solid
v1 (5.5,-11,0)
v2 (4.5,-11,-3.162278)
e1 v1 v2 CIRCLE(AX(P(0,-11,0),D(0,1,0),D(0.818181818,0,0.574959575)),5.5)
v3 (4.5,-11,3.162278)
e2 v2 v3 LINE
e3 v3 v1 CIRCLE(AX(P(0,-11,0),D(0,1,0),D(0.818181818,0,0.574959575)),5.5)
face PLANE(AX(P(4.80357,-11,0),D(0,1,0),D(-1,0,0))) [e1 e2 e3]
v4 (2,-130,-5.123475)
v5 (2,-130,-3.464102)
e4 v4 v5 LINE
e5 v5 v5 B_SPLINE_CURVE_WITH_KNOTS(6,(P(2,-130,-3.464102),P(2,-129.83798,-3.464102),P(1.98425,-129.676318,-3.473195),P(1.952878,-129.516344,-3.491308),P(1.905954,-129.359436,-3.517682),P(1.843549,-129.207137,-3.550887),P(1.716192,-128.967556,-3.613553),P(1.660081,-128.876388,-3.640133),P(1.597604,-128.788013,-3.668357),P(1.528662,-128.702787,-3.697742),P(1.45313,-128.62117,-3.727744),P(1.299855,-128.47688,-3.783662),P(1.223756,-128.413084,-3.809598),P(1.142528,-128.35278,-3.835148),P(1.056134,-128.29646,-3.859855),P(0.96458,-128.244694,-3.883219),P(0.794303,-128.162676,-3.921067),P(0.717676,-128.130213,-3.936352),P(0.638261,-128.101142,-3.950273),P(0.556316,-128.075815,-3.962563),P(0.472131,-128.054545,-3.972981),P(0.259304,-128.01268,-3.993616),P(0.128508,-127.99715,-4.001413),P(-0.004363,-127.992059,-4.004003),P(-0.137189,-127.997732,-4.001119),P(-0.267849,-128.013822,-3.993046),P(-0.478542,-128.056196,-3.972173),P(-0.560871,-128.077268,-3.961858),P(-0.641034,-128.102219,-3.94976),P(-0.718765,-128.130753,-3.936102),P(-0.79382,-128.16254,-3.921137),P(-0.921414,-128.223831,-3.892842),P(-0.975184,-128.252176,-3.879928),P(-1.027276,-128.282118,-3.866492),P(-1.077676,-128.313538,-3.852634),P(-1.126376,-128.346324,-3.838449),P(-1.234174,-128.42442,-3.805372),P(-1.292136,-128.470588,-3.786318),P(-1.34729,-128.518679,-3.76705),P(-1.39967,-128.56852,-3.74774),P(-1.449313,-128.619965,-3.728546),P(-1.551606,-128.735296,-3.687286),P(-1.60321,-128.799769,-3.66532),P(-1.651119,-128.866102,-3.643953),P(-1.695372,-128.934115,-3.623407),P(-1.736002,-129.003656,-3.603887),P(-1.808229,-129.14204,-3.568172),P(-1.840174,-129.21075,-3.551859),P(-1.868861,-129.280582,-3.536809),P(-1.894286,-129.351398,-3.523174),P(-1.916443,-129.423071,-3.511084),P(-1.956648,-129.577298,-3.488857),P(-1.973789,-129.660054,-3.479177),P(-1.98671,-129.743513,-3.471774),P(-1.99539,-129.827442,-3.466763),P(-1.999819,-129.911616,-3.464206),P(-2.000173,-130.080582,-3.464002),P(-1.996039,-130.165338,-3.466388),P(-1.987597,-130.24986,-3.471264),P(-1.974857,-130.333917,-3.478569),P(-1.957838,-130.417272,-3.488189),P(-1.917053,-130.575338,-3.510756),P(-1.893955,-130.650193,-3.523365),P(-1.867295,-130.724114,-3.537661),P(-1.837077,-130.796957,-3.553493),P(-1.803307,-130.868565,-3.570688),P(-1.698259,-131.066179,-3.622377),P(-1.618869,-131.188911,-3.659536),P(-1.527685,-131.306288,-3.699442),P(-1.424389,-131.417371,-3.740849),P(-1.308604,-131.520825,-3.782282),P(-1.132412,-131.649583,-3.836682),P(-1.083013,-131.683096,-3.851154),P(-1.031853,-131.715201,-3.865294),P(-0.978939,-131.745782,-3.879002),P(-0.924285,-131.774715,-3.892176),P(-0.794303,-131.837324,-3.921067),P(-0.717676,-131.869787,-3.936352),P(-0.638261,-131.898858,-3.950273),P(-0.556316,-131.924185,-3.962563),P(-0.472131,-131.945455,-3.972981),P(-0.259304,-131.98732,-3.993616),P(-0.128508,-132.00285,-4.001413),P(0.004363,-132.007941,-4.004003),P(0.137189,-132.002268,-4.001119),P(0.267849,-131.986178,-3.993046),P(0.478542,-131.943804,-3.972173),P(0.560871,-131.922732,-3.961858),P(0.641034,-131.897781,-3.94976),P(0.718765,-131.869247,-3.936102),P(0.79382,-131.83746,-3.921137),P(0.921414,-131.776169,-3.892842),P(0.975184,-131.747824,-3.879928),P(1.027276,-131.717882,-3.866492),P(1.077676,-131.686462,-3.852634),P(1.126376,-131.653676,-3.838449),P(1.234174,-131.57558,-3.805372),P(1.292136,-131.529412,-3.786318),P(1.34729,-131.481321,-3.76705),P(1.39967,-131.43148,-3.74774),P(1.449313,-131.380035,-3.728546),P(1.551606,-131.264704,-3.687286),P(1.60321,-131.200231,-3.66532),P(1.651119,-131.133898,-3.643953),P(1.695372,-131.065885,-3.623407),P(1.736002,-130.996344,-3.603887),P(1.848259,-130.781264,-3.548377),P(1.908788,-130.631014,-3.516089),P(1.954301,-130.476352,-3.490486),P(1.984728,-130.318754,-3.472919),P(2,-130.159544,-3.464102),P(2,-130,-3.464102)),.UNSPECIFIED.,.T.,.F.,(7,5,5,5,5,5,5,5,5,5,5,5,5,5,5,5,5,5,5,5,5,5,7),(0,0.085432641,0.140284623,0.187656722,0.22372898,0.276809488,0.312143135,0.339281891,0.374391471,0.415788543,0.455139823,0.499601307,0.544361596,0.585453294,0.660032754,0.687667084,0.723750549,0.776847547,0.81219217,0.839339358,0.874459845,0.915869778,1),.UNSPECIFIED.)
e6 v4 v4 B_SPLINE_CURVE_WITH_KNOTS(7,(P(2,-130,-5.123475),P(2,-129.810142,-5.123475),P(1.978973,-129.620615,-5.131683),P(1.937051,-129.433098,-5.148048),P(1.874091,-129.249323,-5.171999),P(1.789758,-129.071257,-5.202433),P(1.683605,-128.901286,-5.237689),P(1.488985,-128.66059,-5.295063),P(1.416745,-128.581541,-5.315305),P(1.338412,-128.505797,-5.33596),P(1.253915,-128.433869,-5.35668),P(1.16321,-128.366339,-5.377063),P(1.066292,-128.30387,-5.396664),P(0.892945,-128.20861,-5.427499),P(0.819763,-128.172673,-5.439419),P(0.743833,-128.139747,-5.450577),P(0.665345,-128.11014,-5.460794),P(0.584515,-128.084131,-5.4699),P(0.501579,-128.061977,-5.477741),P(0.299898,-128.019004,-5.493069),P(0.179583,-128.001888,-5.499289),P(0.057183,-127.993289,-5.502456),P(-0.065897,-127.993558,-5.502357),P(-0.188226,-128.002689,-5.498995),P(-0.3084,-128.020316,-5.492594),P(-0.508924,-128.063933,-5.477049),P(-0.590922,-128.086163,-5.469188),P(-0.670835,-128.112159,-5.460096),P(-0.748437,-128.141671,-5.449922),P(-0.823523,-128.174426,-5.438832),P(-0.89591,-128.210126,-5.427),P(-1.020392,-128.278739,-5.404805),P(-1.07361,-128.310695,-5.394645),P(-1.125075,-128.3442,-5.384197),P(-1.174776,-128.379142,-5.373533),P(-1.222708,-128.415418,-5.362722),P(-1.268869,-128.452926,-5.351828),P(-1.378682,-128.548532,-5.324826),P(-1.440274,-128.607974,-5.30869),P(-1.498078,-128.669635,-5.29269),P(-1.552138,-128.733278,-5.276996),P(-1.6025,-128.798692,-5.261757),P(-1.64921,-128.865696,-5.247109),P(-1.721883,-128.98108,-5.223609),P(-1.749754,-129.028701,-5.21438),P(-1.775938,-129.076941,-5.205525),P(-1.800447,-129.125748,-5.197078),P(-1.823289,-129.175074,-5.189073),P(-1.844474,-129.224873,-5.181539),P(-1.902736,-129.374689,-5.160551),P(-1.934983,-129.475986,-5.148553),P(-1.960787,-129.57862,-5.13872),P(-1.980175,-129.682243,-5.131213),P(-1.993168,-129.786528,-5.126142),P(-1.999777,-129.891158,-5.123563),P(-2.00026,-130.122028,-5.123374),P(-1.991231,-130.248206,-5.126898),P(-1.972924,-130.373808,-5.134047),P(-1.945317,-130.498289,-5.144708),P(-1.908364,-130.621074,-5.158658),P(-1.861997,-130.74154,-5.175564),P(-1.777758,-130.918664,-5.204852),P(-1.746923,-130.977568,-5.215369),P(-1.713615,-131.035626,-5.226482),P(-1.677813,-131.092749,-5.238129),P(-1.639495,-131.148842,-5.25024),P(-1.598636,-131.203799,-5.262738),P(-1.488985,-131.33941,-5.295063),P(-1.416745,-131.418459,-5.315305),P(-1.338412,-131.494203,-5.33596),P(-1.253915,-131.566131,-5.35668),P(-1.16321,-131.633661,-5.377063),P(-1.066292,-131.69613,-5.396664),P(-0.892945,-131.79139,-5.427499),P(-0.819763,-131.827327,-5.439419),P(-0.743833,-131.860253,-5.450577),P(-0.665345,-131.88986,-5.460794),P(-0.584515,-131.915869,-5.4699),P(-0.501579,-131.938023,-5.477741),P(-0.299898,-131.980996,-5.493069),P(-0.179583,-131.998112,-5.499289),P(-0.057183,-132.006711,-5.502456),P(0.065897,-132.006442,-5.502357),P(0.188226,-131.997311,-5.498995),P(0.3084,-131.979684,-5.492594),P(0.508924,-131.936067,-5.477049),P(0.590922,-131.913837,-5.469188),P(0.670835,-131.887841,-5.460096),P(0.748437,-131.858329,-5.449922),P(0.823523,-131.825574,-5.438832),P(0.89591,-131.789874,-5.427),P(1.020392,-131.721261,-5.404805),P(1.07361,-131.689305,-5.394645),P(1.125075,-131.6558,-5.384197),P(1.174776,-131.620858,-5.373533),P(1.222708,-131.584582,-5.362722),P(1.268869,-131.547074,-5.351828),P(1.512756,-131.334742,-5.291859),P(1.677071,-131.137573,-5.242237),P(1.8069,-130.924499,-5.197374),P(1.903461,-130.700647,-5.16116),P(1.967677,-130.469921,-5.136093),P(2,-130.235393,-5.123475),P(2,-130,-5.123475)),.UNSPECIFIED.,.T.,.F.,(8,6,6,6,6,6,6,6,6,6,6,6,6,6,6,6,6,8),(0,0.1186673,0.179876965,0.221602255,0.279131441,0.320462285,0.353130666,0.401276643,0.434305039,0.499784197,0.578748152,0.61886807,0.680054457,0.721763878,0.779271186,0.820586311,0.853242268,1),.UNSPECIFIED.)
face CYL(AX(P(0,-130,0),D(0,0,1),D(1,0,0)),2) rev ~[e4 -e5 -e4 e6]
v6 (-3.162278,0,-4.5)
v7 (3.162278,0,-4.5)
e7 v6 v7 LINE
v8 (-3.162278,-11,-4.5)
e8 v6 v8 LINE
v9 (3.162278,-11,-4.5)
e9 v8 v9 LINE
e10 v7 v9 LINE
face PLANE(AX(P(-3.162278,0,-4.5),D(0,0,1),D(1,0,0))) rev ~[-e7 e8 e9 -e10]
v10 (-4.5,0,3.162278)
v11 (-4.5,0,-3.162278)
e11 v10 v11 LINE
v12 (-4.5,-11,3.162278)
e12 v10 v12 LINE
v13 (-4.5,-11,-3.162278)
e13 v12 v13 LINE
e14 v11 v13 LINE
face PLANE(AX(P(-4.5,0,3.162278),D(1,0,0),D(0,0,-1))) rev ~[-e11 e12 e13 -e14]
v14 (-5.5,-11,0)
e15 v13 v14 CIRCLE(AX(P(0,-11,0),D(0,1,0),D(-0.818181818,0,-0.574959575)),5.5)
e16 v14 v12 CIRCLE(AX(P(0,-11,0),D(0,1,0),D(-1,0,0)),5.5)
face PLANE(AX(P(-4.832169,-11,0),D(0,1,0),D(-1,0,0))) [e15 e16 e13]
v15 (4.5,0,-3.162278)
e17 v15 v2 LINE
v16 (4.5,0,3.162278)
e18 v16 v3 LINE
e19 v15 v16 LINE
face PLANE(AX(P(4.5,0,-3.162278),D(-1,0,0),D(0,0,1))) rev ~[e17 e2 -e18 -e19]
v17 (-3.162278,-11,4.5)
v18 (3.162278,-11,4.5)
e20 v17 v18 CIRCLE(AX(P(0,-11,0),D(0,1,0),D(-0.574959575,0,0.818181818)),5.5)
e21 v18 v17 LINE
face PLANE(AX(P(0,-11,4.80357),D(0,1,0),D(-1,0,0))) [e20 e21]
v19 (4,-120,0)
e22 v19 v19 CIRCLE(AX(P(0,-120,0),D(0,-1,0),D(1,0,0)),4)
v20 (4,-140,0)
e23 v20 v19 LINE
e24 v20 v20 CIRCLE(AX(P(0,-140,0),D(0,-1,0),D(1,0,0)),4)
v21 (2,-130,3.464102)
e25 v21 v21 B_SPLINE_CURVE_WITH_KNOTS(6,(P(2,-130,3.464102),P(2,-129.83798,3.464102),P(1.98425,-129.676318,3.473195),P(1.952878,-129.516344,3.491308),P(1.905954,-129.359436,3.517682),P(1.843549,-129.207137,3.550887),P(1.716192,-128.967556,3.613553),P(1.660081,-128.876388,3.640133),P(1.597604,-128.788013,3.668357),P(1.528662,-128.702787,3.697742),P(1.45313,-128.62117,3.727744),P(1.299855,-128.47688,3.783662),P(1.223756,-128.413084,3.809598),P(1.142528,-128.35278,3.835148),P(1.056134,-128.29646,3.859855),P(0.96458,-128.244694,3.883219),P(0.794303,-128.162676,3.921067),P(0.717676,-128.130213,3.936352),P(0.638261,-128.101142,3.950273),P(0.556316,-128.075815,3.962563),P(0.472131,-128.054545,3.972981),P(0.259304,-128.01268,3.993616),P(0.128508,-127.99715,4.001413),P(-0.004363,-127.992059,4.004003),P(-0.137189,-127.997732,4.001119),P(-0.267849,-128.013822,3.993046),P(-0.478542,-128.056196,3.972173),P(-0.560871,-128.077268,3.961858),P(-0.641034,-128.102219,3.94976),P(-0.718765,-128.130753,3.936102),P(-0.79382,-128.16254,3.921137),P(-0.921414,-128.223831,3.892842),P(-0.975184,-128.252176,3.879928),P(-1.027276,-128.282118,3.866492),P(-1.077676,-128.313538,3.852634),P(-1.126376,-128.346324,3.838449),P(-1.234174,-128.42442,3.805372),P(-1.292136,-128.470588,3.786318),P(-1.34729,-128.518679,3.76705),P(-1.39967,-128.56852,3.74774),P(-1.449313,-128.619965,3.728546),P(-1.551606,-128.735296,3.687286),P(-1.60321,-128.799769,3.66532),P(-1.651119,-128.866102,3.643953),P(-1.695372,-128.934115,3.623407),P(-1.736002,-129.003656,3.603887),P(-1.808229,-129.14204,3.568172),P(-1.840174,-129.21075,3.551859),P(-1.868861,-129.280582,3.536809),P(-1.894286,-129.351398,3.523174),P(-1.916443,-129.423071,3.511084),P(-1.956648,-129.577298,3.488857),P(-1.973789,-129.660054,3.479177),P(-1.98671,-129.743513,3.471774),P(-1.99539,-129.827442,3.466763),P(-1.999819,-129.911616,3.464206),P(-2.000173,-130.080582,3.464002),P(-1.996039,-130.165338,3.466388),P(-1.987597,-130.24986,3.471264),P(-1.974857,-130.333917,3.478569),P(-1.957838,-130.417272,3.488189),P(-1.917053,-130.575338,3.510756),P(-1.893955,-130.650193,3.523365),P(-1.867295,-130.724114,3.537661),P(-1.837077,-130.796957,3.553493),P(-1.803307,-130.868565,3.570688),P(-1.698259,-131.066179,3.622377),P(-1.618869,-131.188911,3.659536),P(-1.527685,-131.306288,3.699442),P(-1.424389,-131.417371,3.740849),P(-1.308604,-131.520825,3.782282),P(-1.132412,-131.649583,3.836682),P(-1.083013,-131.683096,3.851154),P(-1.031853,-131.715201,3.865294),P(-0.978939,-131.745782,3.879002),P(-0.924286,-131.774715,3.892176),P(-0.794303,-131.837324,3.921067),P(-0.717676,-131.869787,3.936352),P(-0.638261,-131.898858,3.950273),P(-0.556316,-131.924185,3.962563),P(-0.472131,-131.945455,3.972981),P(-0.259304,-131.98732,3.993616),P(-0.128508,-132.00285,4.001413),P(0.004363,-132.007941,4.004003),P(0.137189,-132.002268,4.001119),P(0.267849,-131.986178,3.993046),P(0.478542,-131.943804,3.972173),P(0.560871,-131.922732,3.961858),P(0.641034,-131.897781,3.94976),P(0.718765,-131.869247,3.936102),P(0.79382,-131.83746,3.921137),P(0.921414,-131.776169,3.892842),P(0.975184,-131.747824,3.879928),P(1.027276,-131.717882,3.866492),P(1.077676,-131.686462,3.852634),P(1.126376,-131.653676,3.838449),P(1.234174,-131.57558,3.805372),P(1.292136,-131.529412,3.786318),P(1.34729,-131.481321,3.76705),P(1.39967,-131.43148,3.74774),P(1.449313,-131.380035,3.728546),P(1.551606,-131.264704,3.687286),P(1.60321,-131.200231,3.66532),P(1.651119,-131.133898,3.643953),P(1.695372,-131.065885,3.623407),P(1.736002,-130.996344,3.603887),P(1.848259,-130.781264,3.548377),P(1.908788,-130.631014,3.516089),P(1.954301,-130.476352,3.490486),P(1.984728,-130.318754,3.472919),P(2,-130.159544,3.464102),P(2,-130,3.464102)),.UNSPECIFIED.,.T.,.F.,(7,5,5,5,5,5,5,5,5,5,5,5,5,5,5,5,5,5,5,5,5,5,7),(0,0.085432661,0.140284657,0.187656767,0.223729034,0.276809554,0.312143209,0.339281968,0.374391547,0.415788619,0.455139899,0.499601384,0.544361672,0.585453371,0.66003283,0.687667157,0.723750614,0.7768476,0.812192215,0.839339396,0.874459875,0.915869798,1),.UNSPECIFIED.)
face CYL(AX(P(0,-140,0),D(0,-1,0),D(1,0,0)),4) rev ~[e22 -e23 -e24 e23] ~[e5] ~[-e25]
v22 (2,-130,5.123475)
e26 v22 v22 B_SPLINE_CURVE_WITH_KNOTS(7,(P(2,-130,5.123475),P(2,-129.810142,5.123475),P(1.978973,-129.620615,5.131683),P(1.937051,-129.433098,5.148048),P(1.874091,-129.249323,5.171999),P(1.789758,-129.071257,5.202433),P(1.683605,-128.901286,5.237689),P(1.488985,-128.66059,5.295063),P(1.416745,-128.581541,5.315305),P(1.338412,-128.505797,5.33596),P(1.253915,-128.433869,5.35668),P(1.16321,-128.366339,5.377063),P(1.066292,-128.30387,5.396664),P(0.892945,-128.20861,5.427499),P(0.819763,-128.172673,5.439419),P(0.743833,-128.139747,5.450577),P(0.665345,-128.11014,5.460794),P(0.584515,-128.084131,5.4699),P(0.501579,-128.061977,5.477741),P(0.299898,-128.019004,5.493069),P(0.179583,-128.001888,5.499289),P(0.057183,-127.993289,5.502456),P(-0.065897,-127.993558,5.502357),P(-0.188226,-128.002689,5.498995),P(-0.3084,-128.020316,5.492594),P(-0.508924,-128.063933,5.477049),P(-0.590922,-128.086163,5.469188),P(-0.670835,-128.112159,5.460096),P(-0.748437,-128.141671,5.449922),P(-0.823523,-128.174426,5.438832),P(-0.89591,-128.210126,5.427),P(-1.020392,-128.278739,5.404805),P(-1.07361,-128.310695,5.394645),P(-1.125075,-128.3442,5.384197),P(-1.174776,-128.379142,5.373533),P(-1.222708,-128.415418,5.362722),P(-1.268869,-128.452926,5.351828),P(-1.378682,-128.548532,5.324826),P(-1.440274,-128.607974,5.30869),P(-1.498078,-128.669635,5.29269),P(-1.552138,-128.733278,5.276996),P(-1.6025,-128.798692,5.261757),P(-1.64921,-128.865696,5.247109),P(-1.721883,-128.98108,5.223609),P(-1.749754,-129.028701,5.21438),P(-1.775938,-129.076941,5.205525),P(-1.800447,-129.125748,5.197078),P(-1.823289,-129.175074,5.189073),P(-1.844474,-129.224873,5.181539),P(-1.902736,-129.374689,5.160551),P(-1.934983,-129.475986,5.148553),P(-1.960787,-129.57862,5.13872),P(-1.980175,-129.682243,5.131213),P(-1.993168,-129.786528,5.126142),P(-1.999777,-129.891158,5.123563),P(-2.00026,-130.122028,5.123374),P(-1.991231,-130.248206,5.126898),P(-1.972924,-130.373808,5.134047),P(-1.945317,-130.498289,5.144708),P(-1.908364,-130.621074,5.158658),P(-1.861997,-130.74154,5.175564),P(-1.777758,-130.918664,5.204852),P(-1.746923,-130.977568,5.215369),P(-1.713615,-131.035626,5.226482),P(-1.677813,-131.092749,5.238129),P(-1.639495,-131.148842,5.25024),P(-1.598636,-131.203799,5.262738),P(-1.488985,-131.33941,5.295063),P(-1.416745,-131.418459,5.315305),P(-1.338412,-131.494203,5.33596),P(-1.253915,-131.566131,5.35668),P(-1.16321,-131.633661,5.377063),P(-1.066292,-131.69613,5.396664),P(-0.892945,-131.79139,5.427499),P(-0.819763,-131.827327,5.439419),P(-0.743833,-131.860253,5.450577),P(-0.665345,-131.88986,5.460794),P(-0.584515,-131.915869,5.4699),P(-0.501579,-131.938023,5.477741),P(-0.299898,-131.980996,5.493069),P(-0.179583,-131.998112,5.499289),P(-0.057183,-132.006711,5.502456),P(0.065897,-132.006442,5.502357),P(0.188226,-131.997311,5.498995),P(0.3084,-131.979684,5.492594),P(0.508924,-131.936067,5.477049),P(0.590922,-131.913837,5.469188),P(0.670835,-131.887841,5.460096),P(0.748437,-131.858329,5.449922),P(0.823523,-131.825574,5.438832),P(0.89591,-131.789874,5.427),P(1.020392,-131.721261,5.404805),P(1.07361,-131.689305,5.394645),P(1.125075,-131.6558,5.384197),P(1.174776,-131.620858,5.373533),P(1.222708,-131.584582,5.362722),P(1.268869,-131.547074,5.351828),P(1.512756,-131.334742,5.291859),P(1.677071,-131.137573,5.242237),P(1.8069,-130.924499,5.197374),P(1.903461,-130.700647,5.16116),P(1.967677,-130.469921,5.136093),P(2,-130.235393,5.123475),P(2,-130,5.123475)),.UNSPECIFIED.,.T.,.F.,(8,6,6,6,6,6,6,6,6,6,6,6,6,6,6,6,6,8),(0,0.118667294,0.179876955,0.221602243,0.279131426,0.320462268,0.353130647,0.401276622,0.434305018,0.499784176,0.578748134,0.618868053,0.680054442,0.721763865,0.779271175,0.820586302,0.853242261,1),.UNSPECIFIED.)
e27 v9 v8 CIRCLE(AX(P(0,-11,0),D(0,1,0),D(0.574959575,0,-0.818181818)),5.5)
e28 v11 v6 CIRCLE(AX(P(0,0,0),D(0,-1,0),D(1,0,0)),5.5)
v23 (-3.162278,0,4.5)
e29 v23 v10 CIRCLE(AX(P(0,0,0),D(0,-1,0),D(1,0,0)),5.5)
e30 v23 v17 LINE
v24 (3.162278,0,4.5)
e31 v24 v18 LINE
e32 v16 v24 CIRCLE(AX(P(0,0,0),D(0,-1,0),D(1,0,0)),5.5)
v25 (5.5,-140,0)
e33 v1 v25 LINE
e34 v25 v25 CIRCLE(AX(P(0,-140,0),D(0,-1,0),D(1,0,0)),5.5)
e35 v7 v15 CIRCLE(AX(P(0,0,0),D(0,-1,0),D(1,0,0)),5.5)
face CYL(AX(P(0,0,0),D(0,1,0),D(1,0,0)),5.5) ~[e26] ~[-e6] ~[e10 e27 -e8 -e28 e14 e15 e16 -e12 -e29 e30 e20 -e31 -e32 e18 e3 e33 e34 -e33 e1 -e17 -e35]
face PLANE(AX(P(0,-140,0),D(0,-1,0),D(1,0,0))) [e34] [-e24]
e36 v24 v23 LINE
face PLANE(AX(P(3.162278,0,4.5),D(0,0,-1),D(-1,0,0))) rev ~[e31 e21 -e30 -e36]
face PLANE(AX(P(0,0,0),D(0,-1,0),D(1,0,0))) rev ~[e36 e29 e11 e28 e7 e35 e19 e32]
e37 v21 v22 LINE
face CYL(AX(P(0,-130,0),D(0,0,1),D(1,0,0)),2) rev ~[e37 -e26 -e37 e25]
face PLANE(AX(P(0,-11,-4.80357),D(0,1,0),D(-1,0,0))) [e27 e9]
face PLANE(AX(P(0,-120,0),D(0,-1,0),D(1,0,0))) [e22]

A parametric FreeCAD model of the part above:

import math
import FreeCAD as App
import Part
import Sketcher
Q = App.Units.Quantity

doc = App.newDocument("Part")
body = doc.addObject("PartDesign::Body", "Body")

sketch1 = body.newObject("Sketcher::SketchObject", "Sketch")
sketch1.AttachmentSupport = (doc.getObject("XZ_Plane"), [""])
sketch1.MapMode = "FlatFace"
sketch1.addGeometry(Part.Circle(App.Vector(0, 0, 0), App.Vector(0, 0, 1), 6), False)
sketch1.addConstraint([
    Sketcher.Constraint("Coincident", 0, 3, -1, 1),
    Sketcher.Constraint("Diameter", 0, Q("11 mm")),
])
pad1 = body.newObject("PartDesign::Pad", "Pad")
pad1.Profile = sketch1
pad1.Length = 140

sketch2 = body.newObject("Sketcher::SketchObject", "Sketch001")
sketch2.AttachmentSupport = (doc.getObject("XZ_Plane"), [""])
sketch2.MapMode = "FlatFace"
sketch2.AttachmentOffset = App.Placement(App.Vector(0, 0, 140), App.Rotation())
sketch2.addGeometry(Part.Circle(App.Vector(0, 0, 0), App.Vector(0, 0, 1), 4), False)
sketch2.addConstraint([
    Sketcher.Constraint("Coincident", 0, 3, -1, 1),
    Sketcher.Constraint("Diameter", 0, Q("8 mm")),
])
pocket1 = body.newObject("PartDesign::Pocket", "Pocket")
pocket1.Profile = sketch2
pocket1.Length = 20

sketch3 = body.newObject("Sketcher::SketchObject", "Sketch002")
sketch3.AttachmentSupport = (doc.getObject("XZ_Plane"), [""])
sketch3.MapMode = "FlatFace"
sketch3.addGeometry([
    Part.LineSegment(App.Vector(-4.5, 3.2, 0), App.Vector(-4.5, -3.2, 0)),
    Part.ArcOfCircle(Part.Circle(App.Vector(0, 0, 0), App.Vector(0, 0, 1), 5.5), math.radians(180), math.radians(215)),
    Part.ArcOfCircle(Part.Circle(App.Vector(0, 0, 0), App.Vector(0, 0, 1), 5.5), math.radians(145), math.radians(180)),
    Part.ArcOfCircle(Part.Circle(App.Vector(0, 0, 0), App.Vector(0, 0, 1), 5.5), math.radians(55), math.radians(125)),
    Part.LineSegment(App.Vector(3.2, 4.5, 0), App.Vector(-3.2, 4.5, 0)),
    Part.ArcOfCircle(Part.Circle(App.Vector(0, 0, 0), App.Vector(0, 0, 1), 5.5), math.radians(-35), math.radians(35)),
    Part.LineSegment(App.Vector(4.5, -3.2, 0), App.Vector(4.5, 3.2, 0)),
    Part.LineSegment(App.Vector(-3.2, -4.5, 0), App.Vector(3.2, -4.5, 0)),
    Part.ArcOfCircle(Part.Circle(App.Vector(0, 0, 0), App.Vector(0, 0, 1), 5.5), math.radians(-125), math.radians(-55)),
], False)
sketch3.addConstraint([
    Sketcher.Constraint("Coincident", 0, 2, 1, 2),
    Sketcher.Constraint("Tangent", 1, 1, 2, 2),
    Sketcher.Constraint("Coincident", 2, 1, 0, 1),
    Sketcher.Constraint("Coincident", 3, 1, 4, 1),
    Sketcher.Constraint("Coincident", 4, 2, 3, 2),
    Sketcher.Constraint("Coincident", 5, 1, 6, 1),
    Sketcher.Constraint("Coincident", 6, 2, 5, 2),
    Sketcher.Constraint("Coincident", 7, 1, 8, 1),
    Sketcher.Constraint("Coincident", 8, 2, 7, 2),
    Sketcher.Constraint("Vertical", 0),
    Sketcher.Constraint("Horizontal", 4),
    Sketcher.Constraint("Vertical", 6),
    Sketcher.Constraint("Horizontal", 7),
    Sketcher.Constraint("Coincident", 1, 3, -1, 1),
    Sketcher.Constraint("Coincident", 3, 3, -1, 1),
    Sketcher.Constraint("Coincident", 5, 3, -1, 1),
    Sketcher.Constraint("Coincident", 8, 3, -1, 1),
    Sketcher.Constraint("Equal", 1, 2),
    Sketcher.Constraint("Equal", 2, 3),
    Sketcher.Constraint("Equal", 3, 5),
    Sketcher.Constraint("Equal", 5, 8),
    Sketcher.Constraint("PointOnObject", 1, 1, -1),
    Sketcher.Constraint("Horizontal", 0, 2, 5, 1),
    Sketcher.Constraint("Vertical", 4, 2, 7, 1),
    Sketcher.Constraint("Equal", 7, 0),
    Sketcher.Constraint("Radius", 1, Q("5.5 mm")),
    Sketcher.Constraint("DistanceX", 1, 1, 0, 2, Q("1 mm")),
])
pocket2 = body.newObject("PartDesign::Pocket", "Pocket001")
pocket2.Profile = sketch3
pocket2.Length = 11
pocket2.Reversed = True

sketch4 = body.newObject("Sketcher::SketchObject", "Sketch003")
sketch4.AttachmentSupport = (doc.getObject("XY_Plane"), [""])
sketch4.MapMode = "FlatFace"
sketch4.addGeometry(Part.Circle(App.Vector(0, -130, 0), App.Vector(0, 0, 1), 2), False)
sketch4.addConstraint([
    Sketcher.Constraint("PointOnObject", 0, 3, -2),
    Sketcher.Constraint("Diameter", 0, Q("4 mm")),
    Sketcher.Constraint("DistanceY", 0, 3, -1, 1, Q("130 mm")),
])
pocket3 = body.newObject("PartDesign::Pocket", "Pocket002")
pocket3.Profile = sketch4
pocket3.Length = 25
pocket3.Midplane = True

doc.recompute()
